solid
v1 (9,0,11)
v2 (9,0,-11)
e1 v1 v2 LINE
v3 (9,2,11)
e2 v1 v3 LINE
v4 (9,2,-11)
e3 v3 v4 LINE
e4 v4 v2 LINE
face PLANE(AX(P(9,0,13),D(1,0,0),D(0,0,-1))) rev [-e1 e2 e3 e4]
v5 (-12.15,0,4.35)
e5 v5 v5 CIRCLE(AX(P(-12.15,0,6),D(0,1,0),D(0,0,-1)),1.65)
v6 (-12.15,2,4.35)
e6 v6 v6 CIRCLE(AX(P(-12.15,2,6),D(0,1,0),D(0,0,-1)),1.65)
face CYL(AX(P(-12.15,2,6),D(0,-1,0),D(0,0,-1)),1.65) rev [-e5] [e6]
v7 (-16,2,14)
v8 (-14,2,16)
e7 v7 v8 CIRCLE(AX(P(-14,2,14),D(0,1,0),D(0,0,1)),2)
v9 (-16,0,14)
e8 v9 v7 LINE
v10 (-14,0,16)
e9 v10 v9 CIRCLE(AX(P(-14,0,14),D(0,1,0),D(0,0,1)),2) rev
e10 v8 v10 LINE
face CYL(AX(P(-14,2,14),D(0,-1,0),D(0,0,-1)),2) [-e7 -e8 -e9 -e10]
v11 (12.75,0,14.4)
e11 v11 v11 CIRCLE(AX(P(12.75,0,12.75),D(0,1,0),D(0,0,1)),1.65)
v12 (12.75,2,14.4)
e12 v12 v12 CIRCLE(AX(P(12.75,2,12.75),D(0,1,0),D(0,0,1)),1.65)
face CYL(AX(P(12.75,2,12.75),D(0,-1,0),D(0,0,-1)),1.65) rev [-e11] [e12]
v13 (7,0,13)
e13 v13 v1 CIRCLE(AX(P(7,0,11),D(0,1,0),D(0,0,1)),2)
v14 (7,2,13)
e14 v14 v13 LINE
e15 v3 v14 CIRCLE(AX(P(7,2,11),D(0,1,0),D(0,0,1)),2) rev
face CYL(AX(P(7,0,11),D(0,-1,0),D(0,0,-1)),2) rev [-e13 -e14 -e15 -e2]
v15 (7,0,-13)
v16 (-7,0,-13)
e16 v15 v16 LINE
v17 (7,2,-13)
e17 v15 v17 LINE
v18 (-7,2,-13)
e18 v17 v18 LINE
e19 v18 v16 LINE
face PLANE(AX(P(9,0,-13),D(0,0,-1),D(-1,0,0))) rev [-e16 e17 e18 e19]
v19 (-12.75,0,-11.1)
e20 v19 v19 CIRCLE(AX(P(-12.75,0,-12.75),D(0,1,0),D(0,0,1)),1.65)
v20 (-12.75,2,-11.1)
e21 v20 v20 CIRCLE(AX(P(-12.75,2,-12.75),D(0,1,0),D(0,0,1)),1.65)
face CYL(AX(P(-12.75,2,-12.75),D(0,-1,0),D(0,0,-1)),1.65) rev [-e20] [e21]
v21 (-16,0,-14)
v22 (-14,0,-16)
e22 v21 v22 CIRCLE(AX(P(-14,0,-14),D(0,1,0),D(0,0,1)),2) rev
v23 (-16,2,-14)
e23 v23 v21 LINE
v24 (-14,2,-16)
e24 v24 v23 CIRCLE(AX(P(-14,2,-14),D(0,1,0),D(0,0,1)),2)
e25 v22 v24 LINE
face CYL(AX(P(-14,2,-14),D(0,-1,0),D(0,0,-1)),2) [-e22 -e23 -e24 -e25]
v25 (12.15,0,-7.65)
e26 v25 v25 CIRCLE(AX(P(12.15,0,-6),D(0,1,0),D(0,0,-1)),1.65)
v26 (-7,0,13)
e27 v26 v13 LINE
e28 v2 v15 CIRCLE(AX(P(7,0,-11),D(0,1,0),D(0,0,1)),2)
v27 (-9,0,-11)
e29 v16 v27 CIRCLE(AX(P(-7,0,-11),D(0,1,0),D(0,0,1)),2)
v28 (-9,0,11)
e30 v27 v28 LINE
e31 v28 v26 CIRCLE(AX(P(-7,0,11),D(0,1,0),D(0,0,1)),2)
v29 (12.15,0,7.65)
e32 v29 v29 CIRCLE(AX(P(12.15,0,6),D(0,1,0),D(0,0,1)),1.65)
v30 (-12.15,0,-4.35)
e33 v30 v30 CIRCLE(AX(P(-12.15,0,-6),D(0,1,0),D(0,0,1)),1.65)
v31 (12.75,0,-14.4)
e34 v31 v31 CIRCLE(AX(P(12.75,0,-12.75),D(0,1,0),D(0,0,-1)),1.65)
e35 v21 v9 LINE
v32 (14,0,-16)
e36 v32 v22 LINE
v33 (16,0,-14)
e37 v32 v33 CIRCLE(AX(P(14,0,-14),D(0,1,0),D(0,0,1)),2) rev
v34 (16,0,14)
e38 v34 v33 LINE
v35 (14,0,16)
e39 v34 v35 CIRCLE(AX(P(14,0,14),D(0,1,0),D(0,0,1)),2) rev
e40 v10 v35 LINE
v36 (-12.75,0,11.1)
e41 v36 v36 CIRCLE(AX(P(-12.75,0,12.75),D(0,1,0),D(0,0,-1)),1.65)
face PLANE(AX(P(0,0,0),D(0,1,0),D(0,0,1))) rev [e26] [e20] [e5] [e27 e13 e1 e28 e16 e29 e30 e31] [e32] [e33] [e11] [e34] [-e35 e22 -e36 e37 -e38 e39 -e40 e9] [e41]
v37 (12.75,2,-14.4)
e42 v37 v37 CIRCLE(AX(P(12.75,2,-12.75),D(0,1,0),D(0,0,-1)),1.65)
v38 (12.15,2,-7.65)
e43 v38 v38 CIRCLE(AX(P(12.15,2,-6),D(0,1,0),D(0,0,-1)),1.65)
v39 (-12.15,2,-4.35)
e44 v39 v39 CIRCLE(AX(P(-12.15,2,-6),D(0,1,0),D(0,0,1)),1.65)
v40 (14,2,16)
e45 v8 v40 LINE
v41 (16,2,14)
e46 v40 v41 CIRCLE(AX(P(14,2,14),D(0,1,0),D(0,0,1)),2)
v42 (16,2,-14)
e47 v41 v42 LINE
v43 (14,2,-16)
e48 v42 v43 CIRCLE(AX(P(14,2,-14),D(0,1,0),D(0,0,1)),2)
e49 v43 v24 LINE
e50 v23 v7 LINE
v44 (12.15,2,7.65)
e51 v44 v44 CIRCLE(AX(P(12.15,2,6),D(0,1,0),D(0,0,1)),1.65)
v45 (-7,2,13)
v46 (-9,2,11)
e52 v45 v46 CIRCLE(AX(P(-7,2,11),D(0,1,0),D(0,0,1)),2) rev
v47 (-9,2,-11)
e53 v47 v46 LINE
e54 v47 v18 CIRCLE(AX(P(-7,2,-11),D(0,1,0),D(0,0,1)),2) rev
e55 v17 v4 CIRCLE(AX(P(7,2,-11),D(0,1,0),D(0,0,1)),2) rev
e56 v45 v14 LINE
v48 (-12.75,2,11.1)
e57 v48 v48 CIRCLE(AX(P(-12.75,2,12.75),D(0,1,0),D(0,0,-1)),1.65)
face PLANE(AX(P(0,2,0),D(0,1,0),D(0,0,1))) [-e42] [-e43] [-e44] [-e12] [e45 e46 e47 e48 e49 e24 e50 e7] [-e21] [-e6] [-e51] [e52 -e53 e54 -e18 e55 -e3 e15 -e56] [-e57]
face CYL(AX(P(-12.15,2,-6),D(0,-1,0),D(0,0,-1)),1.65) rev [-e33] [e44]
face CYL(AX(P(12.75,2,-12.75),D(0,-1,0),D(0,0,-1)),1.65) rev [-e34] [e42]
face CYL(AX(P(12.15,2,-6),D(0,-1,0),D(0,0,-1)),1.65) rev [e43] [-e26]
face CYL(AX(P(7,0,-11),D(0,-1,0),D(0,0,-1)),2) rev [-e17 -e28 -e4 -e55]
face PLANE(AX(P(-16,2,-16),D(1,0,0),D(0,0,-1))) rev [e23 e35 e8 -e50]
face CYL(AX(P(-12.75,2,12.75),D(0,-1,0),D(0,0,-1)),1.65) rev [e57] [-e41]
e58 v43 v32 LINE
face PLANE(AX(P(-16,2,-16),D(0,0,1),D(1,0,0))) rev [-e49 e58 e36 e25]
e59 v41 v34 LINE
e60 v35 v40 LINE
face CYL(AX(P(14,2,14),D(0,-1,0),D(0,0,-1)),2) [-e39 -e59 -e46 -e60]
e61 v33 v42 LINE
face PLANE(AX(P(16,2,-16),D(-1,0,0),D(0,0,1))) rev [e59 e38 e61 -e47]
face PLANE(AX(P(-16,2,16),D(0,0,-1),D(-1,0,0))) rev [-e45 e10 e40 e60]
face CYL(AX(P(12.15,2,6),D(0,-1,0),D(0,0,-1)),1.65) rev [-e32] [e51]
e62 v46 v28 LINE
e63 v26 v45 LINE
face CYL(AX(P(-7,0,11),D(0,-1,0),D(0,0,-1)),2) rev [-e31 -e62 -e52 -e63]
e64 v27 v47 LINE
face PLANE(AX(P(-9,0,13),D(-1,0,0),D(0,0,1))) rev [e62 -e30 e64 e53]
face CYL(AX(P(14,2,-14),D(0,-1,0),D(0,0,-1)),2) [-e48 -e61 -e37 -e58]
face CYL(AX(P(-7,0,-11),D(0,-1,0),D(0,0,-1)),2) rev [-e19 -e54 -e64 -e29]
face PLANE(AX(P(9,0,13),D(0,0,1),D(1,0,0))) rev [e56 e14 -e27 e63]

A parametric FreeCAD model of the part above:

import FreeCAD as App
import Part
import Sketcher


def edges_at(feature, points):
    """Names of the edges that pass closest to the given points."""
    edges = feature.Shape.Edges
    near = lambda p: min(range(len(edges)), key=lambda i: edges[i].distToShape(Part.Vertex(*p))[0])
    return sorted({f"Edge{near(p) + 1}" for p in points})


def add_polygon(sketch, points):
    """Adds a closed chain of lines whose ends are joined by coincident constraints."""
    first, n = sketch.GeometryCount, len(points)
    for a, b in zip(points, points[1:] + points[:1]):
        sketch.addGeometry(Part.LineSegment(App.Vector(*a, 0), App.Vector(*b, 0)), False)
    for i in range(n):
        sketch.addConstraint(Sketcher.Constraint("Coincident", first + i, 2, first + (i + 1) % n, 1))

doc = App.newDocument("Part")
params = doc.addObject("Spreadsheet::Sheet", "Params")
for row, (alias, value) in enumerate([
    ("sketch1_diameter", "3.3 mm"),
    ("sketch1_width", "32 mm"),
    ("pad1_length", "2 mm"),
    ("sketch2_width", "18 mm"),
    ("sketch2_height", "26 mm"),
    ("fillet_radius", "2 mm"),
], start=1):
    params.set(f"A{row}", alias)
    params.set(f"B{row}", "=" + value)
    params.setAlias(f"B{row}", alias)

body = doc.addObject("PartDesign::Body", "Body")

sketch1 = doc.addObject("Sketcher::SketchObject", "Sketch")
body.addObject(sketch1)
sketch1.AttachmentSupport = (doc.XZ_Plane, [""])
sketch1.MapMode = "FlatFace"
add_polygon(sketch1, [(-16, -16), (-16, 16), (16, 16), (16, -16)])
sketch1.addGeometry(Part.Circle(App.Vector(-12.8, 12.8, 0), App.Vector(0, 0, 1), 1.6), False)
sketch1.addGeometry(Part.Circle(App.Vector(-12.2, 6, 0), App.Vector(0, 0, 1), 1.6), False)
sketch1.addGeometry(Part.Circle(App.Vector(12.8, 12.8, 0), App.Vector(0, 0, 1), 1.6), False)
sketch1.addGeometry(Part.Circle(App.Vector(12.2, 6, 0), App.Vector(0, 0, 1), 1.6), False)
sketch1.addGeometry(Part.Circle(App.Vector(-12.2, -6, 0), App.Vector(0, 0, 1), 1.6), False)
sketch1.addGeometry(Part.Circle(App.Vector(-12.8, -12.8, 0), App.Vector(0, 0, 1), 1.6), False)
sketch1.addGeometry(Part.Circle(App.Vector(12.2, -6, 0), App.Vector(0, 0, 1), 1.6), False)
sketch1.addGeometry(Part.Circle(App.Vector(12.8, -12.8, 0), App.Vector(0, 0, 1), 1.6), False)
sketch1.addConstraint([
    Sketcher.Constraint("Vertical", 0),
    Sketcher.Constraint("Horizontal", 1),
    Sketcher.Constraint("Vertical", 2),
    Sketcher.Constraint("Horizontal", 3),
    Sketcher.Constraint("Equal", 4, 5),
    Sketcher.Constraint("Equal", 5, 6),
    Sketcher.Constraint("Equal", 6, 7),
    Sketcher.Constraint("Equal", 7, 8),
    Sketcher.Constraint("Equal", 8, 9),
    Sketcher.Constraint("Equal", 9, 10),
    Sketcher.Constraint("Equal", 10, 11),
    Sketcher.Constraint("Symmetric", 7, 3, 8, 3, -1, 1),
    Sketcher.Constraint("Symmetric", 6, 3, 9, 3, -1, 1),
    Sketcher.Constraint("Symmetric", 5, 3, 10, 3, -1, 1),
    Sketcher.Constraint("Symmetric", 4, 3, 11, 3, -1, 1),
    Sketcher.Constraint("Symmetric", 0, 2, 2, 2, -1, 1),
    Sketcher.Constraint("Symmetric", 4, 3, 6, 3, -2),
    Sketcher.Constraint("Symmetric", 5, 3, 7, 3, -2),
    Sketcher.Constraint("Equal", 3, 0),
    Sketcher.Constraint("Diameter", 4, 3.3),
    Sketcher.Constraint("DistanceX", 1, 1, 1, 2, 32.0),
    Sketcher.Constraint("DistanceY", -1, 1, 5, 3, 6.0),
    Sketcher.Constraint("DistanceX", 4, 3, 5, 3, 0.6),
    Sketcher.Constraint("DistanceX", 4, 3, 6, 3, 25.5),
    Sketcher.Constraint("DistanceY", 9, 3, 4, 3, 25.5),
])
sketch1.setExpression("Constraints[23]", "Params.sketch1_diameter")
sketch1.setExpression("Constraints[24]", "Params.sketch1_width")
pad1 = doc.addObject("PartDesign::Pad", "Pad")
body.addObject(pad1)
pad1.Profile = sketch1
pad1.setExpression("Length", "Params.pad1_length")
pad1.Reversed = True

sketch2 = doc.addObject("Sketcher::SketchObject", "Sketch001")
body.addObject(sketch2)
sketch2.AttachmentSupport = (doc.XZ_Plane, [""])
sketch2.MapMode = "FlatFace"
sketch2.AttachmentOffset = App.Placement(App.Vector(0, 0, -2), App.Rotation())
add_polygon(sketch2, [(-9, -13), (-9, 13), (9, 13), (9, -13)])
sketch2.addConstraint([
    Sketcher.Constraint("Vertical", 0),
    Sketcher.Constraint("Horizontal", 1),
    Sketcher.Constraint("Vertical", 2),
    Sketcher.Constraint("Horizontal", 3),
    Sketcher.Constraint("Symmetric", 0, 2, 2, 2, -1, 1),
    Sketcher.Constraint("DistanceX", 1, 1, 1, 2, 18.0),
    Sketcher.Constraint("DistanceY", 0, 1, 0, 2, 26.0),
])
sketch2.setExpression("Constraints[9]", "Params.sketch2_width")
sketch2.setExpression("Constraints[10]", "Params.sketch2_height")
pocket1 = doc.addObject("PartDesign::Pocket", "Pocket")
body.addObject(pocket1)
pocket1.Profile = sketch2
pocket1.Type = "ThroughAll"
pocket1.Reversed = True
doc.recompute()

fillet = doc.addObject("PartDesign::Fillet", "Fillet")
body.addObject(fillet)
fillet.Base = (pocket1, edges_at(pocket1, [
    (-9, 1, 13),
    (-9, 1, -13),
    (9, 1, -13),
    (9, 1, 13),
    (16, 1, 16),
    (-16, 1, 16),
    (-16, 1, -16),
    (16, 1, -16),
]))
fillet.setExpression("Radius", "Params.fillet_radius")

doc.recompute()
